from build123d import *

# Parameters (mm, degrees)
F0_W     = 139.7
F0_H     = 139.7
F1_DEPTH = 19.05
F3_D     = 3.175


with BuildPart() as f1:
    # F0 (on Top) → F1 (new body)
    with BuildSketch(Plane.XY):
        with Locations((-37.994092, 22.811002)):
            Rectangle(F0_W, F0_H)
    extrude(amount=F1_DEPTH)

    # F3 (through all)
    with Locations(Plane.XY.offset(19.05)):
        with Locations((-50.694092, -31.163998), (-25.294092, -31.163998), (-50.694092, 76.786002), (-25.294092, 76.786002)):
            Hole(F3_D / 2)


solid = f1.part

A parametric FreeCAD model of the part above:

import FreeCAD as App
import Part
import Sketcher
Q = App.Units.Quantity

doc = App.newDocument("Part")
params = doc.addObject("Spreadsheet::Sheet", "Params")
for row, (alias, value) in enumerate([
    ("sketch1_width", "5.5 in"),
    ("pad1_length", "0.75 in"),
    ("sketch2_diameter", "0.125 in"),
    ("hole_diameter", "0.125 in"),
], start=1):
    params.set(f"A{row}", alias)
    params.set(f"B{row}", "=" + value)
    params.setAlias(f"B{row}", alias)

body = doc.addObject("PartDesign::Body", "Body")

sketch1 = body.newObject("Sketcher::SketchObject", "Sketch")
sketch1.AttachmentSupport = (doc.getObject("XY_Plane"), [""])
sketch1.MapMode = "FlatFace"
sketch1.addGeometry([
    Part.LineSegment(App.Vector(-108, 93, 0), App.Vector(-108, -47, 0)),
    Part.LineSegment(App.Vector(-108, -47, 0), App.Vector(32, -47, 0)),
    Part.LineSegment(App.Vector(32, -47, 0), App.Vector(32, 93, 0)),
    Part.LineSegment(App.Vector(32, 93, 0), App.Vector(-108, 93, 0)),
], False)
sketch1.addConstraint([
    Sketcher.Constraint("Coincident", 0, 2, 1, 1),
    Sketcher.Constraint("Coincident", 1, 2, 2, 1),
    Sketcher.Constraint("Coincident", 2, 2, 3, 1),
    Sketcher.Constraint("Coincident", 3, 2, 0, 1),
    Sketcher.Constraint("Vertical", 0),
    Sketcher.Constraint("Horizontal", 1),
    Sketcher.Constraint("Vertical", 2),
    Sketcher.Constraint("Horizontal", 3),
    Sketcher.Constraint("Equal", 3, 0),
    Sketcher.Constraint("DistanceX", 1, 1, 1, 2, Q("5.5 in")),
    Sketcher.Constraint("DistanceY", -1, 1, 2, 2, 92.661002),
    Sketcher.Constraint("DistanceX", 0, 2, -1, 1, 107.844092),
])
sketch1.setExpression("Constraints[9]", "Params.sketch1_width")
pad1 = body.newObject("PartDesign::Pad", "Pad")
pad1.Profile = sketch1
pad1.setExpression("Length", "Params.pad1_length")

sketch2 = body.newObject("Sketcher::SketchObject", "Sketch001")
sketch2.AttachmentSupport = (doc.getObject("XY_Plane"), [""])
sketch2.MapMode = "FlatFace"
sketch2.AttachmentOffset = App.Placement(App.Vector(0, 0, 0.75 * 25.4), App.Rotation())
sketch2.addGeometry([
    Part.Circle(App.Vector(-50.7, -31.2, 0), App.Vector(0, 0, 1), 1.6),
    Part.Circle(App.Vector(-25.3, -31.2, 0), App.Vector(0, 0, 1), 1.6),
    Part.Circle(App.Vector(-50.7, 76.8, 0), App.Vector(0, 0, 1), 1.6),
    Part.Circle(App.Vector(-25.3, 76.8, 0), App.Vector(0, 0, 1), 1.6),
], False)
sketch2.addConstraint([
    Sketcher.Constraint("Equal", 0, 1),
    Sketcher.Constraint("Equal", 1, 2),
    Sketcher.Constraint("Equal", 2, 3),
    Sketcher.Constraint("Horizontal", 0, 3, 1, 3),
    Sketcher.Constraint("Horizontal", 2, 3, 3, 3),
    Sketcher.Constraint("Vertical", 0, 3, 2, 3),
    Sketcher.Constraint("Vertical", 1, 3, 3, 3),
    Sketcher.Constraint("Diameter", 0, Q("0.125 in")),
    Sketcher.Constraint("DistanceX", 0, 3, 1, 3, Q("1 in")),
    Sketcher.Constraint("DistanceY", 0, 3, 2, 3, Q("4.25 in")),
    Sketcher.Constraint("DistanceY", -1, 1, 2, 3, 76.786002),
    Sketcher.Constraint("DistanceX", 0, 3, -1, 1, 50.694092),
])
sketch2.setExpression("Constraints[7]", "Params.sketch2_diameter")
doc.recompute()
hole = body.newObject("PartDesign::Hole", "Hole")
hole.Profile = sketch2
hole.ThreadType = "None"
hole.setExpression("Diameter", "Params.hole_diameter")
hole.DepthType = "ThroughAll"

doc.recompute()
